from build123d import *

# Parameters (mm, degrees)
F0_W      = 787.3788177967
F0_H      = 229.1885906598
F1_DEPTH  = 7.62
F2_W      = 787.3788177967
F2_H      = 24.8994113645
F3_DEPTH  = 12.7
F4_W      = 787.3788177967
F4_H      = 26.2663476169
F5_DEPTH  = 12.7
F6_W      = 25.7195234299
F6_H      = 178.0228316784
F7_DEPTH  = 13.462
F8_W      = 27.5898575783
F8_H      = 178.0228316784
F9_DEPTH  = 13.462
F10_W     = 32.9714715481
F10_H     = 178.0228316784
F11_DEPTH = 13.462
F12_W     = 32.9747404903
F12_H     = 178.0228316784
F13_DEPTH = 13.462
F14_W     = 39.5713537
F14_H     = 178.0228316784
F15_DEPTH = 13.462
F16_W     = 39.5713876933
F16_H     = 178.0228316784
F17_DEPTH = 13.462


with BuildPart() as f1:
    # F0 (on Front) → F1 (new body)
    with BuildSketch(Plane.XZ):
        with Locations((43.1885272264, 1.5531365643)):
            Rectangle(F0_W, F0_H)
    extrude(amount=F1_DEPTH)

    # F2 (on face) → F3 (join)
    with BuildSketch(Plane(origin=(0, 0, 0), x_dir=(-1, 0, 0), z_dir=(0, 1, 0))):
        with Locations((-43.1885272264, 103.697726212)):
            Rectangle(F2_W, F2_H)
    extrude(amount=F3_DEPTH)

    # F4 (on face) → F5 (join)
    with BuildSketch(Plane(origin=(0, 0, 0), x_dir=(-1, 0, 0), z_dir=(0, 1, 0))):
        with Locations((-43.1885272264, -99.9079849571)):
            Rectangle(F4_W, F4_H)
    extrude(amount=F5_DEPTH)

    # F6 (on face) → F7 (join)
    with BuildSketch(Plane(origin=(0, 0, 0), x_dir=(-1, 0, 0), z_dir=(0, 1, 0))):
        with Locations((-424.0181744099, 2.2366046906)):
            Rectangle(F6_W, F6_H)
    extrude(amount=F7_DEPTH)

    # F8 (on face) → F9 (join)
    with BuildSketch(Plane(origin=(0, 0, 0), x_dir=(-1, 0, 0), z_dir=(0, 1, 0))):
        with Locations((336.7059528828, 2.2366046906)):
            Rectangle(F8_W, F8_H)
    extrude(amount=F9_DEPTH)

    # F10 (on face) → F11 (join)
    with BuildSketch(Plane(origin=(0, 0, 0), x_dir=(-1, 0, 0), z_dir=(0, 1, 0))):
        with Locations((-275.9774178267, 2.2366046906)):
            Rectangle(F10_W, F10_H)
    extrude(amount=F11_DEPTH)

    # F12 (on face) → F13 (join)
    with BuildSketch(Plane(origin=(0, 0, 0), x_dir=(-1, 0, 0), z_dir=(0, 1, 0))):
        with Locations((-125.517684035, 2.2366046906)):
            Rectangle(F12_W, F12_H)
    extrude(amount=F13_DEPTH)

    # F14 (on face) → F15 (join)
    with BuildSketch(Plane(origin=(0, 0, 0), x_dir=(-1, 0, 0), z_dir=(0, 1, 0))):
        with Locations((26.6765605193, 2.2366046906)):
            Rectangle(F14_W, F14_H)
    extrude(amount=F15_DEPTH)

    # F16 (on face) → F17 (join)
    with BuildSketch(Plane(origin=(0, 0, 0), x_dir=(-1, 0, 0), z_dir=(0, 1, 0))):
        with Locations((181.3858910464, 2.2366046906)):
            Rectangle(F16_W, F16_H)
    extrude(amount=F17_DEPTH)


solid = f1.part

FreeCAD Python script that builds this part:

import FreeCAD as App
import Part
import Sketcher
Q = App.Units.Quantity

doc = App.newDocument("Part")
params = doc.addObject("Spreadsheet::Sheet", "Params")
for row, (alias, value) in enumerate([
    ("pad1_length", "0.3 in"),
    ("pad2_length", "0.5 in"),
    ("pad3_length", "0.5 in"),
    ("pad4_length", "0.53 in"),
    ("pad5_length", "0.53 in"),
    ("pad6_length", "0.53 in"),
    ("pad7_length", "0.53 in"),
    ("pad8_length", "0.53 in"),
    ("pad9_length", "0.53 in"),
], start=1):
    params.set(f"A{row}", alias)
    params.set(f"B{row}", "=" + value)
    params.setAlias(f"B{row}", alias)

body = doc.addObject("PartDesign::Body", "Body")

sketch1 = body.newObject("Sketcher::SketchObject", "Sketch")
sketch1.AttachmentSupport = (doc.getObject("XZ_Plane"), [""])
sketch1.MapMode = "FlatFace"
sketch1.addGeometry([
    Part.LineSegment(App.Vector(-351, 116, 0), App.Vector(-351, -113, 0)),
    Part.LineSegment(App.Vector(-351, -113, 0), App.Vector(437, -113, 0)),
    Part.LineSegment(App.Vector(437, -113, 0), App.Vector(437, 116, 0)),
    Part.LineSegment(App.Vector(437, 116, 0), App.Vector(-351, 116, 0)),
], False)
sketch1.addConstraint([
    Sketcher.Constraint("Coincident", 0, 2, 1, 1),
    Sketcher.Constraint("Coincident", 1, 2, 2, 1),
    Sketcher.Constraint("Coincident", 2, 2, 3, 1),
    Sketcher.Constraint("Coincident", 3, 2, 0, 1),
    Sketcher.Constraint("Vertical", 0),
    Sketcher.Constraint("Horizontal", 1),
    Sketcher.Constraint("Vertical", 2),
    Sketcher.Constraint("Horizontal", 3),
    Sketcher.Constraint("DistanceY", 0, 2, 0, 1, Q("229.188591 mm")),
    Sketcher.Constraint("DistanceX", 1, 1, 1, 2, Q("787.378818 mm")),
    Sketcher.Constraint("DistanceX", 0, 2, -1, 1, Q("350.500882 mm")),
    Sketcher.Constraint("DistanceY", 0, 2, -1, 1, Q("113.041159 mm")),
])
pad1 = body.newObject("PartDesign::Pad", "Pad")
pad1.Profile = sketch1
pad1.setExpression("Length", "Params.pad1_length")

sketch2 = body.newObject("Sketcher::SketchObject", "Sketch001")
sketch2.AttachmentSupport = (doc.getObject("XZ_Plane"), [""])
sketch2.MapMode = "FlatFace"
sketch2.addGeometry([
    Part.LineSegment(App.Vector(437, 116, 0), App.Vector(437, 91, 0)),
    Part.LineSegment(App.Vector(437, 91, 0), App.Vector(-351, 91, 0)),
    Part.LineSegment(App.Vector(-351, 91, 0), App.Vector(-351, 116, 0)),
    Part.LineSegment(App.Vector(-351, 116, 0), App.Vector(437, 116, 0)),
], False)
sketch2.addConstraint([
    Sketcher.Constraint("Coincident", 0, 2, 1, 1),
    Sketcher.Constraint("Coincident", 1, 2, 2, 1),
    Sketcher.Constraint("Coincident", 2, 2, 3, 1),
    Sketcher.Constraint("Coincident", 3, 2, 0, 1),
    Sketcher.Constraint("Vertical", 0),
    Sketcher.Constraint("Horizontal", 1),
    Sketcher.Constraint("Vertical", 2),
    Sketcher.Constraint("Horizontal", 3),
    Sketcher.Constraint("DistanceY", 0, 2, 0, 1, Q("24.899411 mm")),
    Sketcher.Constraint("DistanceX", 1, 2, 1, 1, Q("787.378818 mm")),
    Sketcher.Constraint("DistanceY", -1, 1, 0, 2, Q("91.248021 mm")),
    Sketcher.Constraint("DistanceX", 1, 2, -1, 1, Q("350.500882 mm")),
])
pad2 = body.newObject("PartDesign::Pad", "Pad001")
pad2.Profile = sketch2
pad2.setExpression("Length", "Params.pad2_length")
pad2.Reversed = True

sketch3 = body.newObject("Sketcher::SketchObject", "Sketch002")
sketch3.AttachmentSupport = (doc.getObject("XZ_Plane"), [""])
sketch3.MapMode = "FlatFace"
sketch3.addGeometry([
    Part.LineSegment(App.Vector(437, -87, 0), App.Vector(437, -113, 0)),
    Part.LineSegment(App.Vector(437, -113, 0), App.Vector(-351, -113, 0)),
    Part.LineSegment(App.Vector(-351, -113, 0), App.Vector(-351, -87, 0)),
    Part.LineSegment(App.Vector(-351, -87, 0), App.Vector(437, -87, 0)),
], False)
sketch3.addConstraint([
    Sketcher.Constraint("Coincident", 0, 2, 1, 1),
    Sketcher.Constraint("Coincident", 1, 2, 2, 1),
    Sketcher.Constraint("Coincident", 2, 2, 3, 1),
    Sketcher.Constraint("Coincident", 3, 2, 0, 1),
    Sketcher.Constraint("Vertical", 0),
    Sketcher.Constraint("Horizontal", 1),
    Sketcher.Constraint("Vertical", 2),
    Sketcher.Constraint("Horizontal", 3),
    Sketcher.Constraint("DistanceX", 1, 2, 1, 1, Q("787.378818 mm")),
    Sketcher.Constraint("DistanceY", 0, 2, 0, 1, Q("26.266348 mm")),
    Sketcher.Constraint("DistanceY", 0, 2, -1, 1, Q("113.041159 mm")),
    Sketcher.Constraint("DistanceX", 1, 2, -1, 1, Q("350.500882 mm")),
])
pad3 = body.newObject("PartDesign::Pad", "Pad002")
pad3.Profile = sketch3
pad3.setExpression("Length", "Params.pad3_length")
pad3.Reversed = True

sketch4 = body.newObject("Sketcher::SketchObject", "Sketch003")
sketch4.AttachmentSupport = (doc.getObject("XZ_Plane"), [""])
sketch4.MapMode = "FlatFace"
sketch4.addGeometry([
    Part.LineSegment(App.Vector(437, 91, 0), App.Vector(437, -87, 0)),
    Part.LineSegment(App.Vector(437, -87, 0), App.Vector(411, -87, 0)),
    Part.LineSegment(App.Vector(411, -87, 0), App.Vector(411, 91, 0)),
    Part.LineSegment(App.Vector(411, 91, 0), App.Vector(437, 91, 0)),
], False)
sketch4.addConstraint([
    Sketcher.Constraint("Coincident", 0, 2, 1, 1),
    Sketcher.Constraint("Coincident", 1, 2, 2, 1),
    Sketcher.Constraint("Coincident", 2, 2, 3, 1),
    Sketcher.Constraint("Coincident", 3, 2, 0, 1),
    Sketcher.Constraint("Vertical", 0),
    Sketcher.Constraint("Horizontal", 1),
    Sketcher.Constraint("Vertical", 2),
    Sketcher.Constraint("Horizontal", 3),
    Sketcher.Constraint("DistanceY", 0, 2, 0, 1, Q("178.022832 mm")),
    Sketcher.Constraint("DistanceX", 1, 2, 1, 1, Q("25.719523 mm")),
    Sketcher.Constraint("DistanceY", 0, 2, -1, 1, Q("86.774811 mm")),
    Sketcher.Constraint("DistanceX", -1, 1, 0, 2, Q("436.877936 mm")),
])
pad4 = body.newObject("PartDesign::Pad", "Pad003")
pad4.Profile = sketch4
pad4.setExpression("Length", "Params.pad4_length")
pad4.Reversed = True

sketch5 = body.newObject("Sketcher::SketchObject", "Sketch004")
sketch5.AttachmentSupport = (doc.getObject("XZ_Plane"), [""])
sketch5.MapMode = "FlatFace"
sketch5.addGeometry([
    Part.LineSegment(App.Vector(-323, 91, 0), App.Vector(-323, -87, 0)),
    Part.LineSegment(App.Vector(-323, -87, 0), App.Vector(-351, -87, 0)),
    Part.LineSegment(App.Vector(-351, -87, 0), App.Vector(-351, 91, 0)),
    Part.LineSegment(App.Vector(-351, 91, 0), App.Vector(-323, 91, 0)),
], False)
sketch5.addConstraint([
    Sketcher.Constraint("Coincident", 0, 2, 1, 1),
    Sketcher.Constraint("Coincident", 1, 2, 2, 1),
    Sketcher.Constraint("Coincident", 2, 2, 3, 1),
    Sketcher.Constraint("Coincident", 3, 2, 0, 1),
    Sketcher.Constraint("Vertical", 0),
    Sketcher.Constraint("Horizontal", 1),
    Sketcher.Constraint("Vertical", 2),
    Sketcher.Constraint("Horizontal", 3),
    Sketcher.Constraint("DistanceY", 0, 2, 0, 1, Q("178.022832 mm")),
    Sketcher.Constraint("DistanceX", 1, 2, 1, 1, Q("27.589858 mm")),
    Sketcher.Constraint("DistanceY", 0, 2, -1, 1, Q("86.774811 mm")),
    Sketcher.Constraint("DistanceX", 1, 2, -1, 1, Q("350.500882 mm")),
])
pad5 = body.newObject("PartDesign::Pad", "Pad004")
pad5.Profile = sketch5
pad5.setExpression("Length", "Params.pad5_length")
pad5.Reversed = True

sketch6 = body.newObject("Sketcher::SketchObject", "Sketch005")
sketch6.AttachmentSupport = (doc.getObject("XZ_Plane"), [""])
sketch6.MapMode = "FlatFace"
sketch6.addGeometry([
    Part.LineSegment(App.Vector(292, 91, 0), App.Vector(292, -87, 0)),
    Part.LineSegment(App.Vector(292, -87, 0), App.Vector(259, -87, 0)),
    Part.LineSegment(App.Vector(259, -87, 0), App.Vector(259, 91, 0)),
    Part.LineSegment(App.Vector(259, 91, 0), App.Vector(292, 91, 0)),
], False)
sketch6.addConstraint([
    Sketcher.Constraint("Coincident", 0, 2, 1, 1),
    Sketcher.Constraint("Coincident", 1, 2, 2, 1),
    Sketcher.Constraint("Coincident", 2, 2, 3, 1),
    Sketcher.Constraint("Coincident", 3, 2, 0, 1),
    Sketcher.Constraint("Vertical", 0),
    Sketcher.Constraint("Horizontal", 1),
    Sketcher.Constraint("Vertical", 2),
    Sketcher.Constraint("Horizontal", 3),
    Sketcher.Constraint("DistanceX", 1, 2, 1, 1, Q("32.971472 mm")),
    Sketcher.Constraint("DistanceY", 0, 2, 0, 1, Q("178.022832 mm")),
    Sketcher.Constraint("DistanceY", 0, 2, -1, 1, Q("86.774811 mm")),
    Sketcher.Constraint("DistanceX", -1, 1, 0, 2, Q("292.463154 mm")),
])
pad6 = body.newObject("PartDesign::Pad", "Pad005")
pad6.Profile = sketch6
pad6.setExpression("Length", "Params.pad6_length")
pad6.Reversed = True

sketch7 = body.newObject("Sketcher::SketchObject", "Sketch006")
sketch7.AttachmentSupport = (doc.getObject("XZ_Plane"), [""])
sketch7.MapMode = "FlatFace"
sketch7.addGeometry([
    Part.LineSegment(App.Vector(142, 91, 0), App.Vector(142, -87, 0)),
    Part.LineSegment(App.Vector(142, -87, 0), App.Vector(109, -87, 0)),
    Part.LineSegment(App.Vector(109, -87, 0), App.Vector(109, 91, 0)),
    Part.LineSegment(App.Vector(109, 91, 0), App.Vector(142, 91, 0)),
], False)
sketch7.addConstraint([
    Sketcher.Constraint("Coincident", 0, 2, 1, 1),
    Sketcher.Constraint("Coincident", 1, 2, 2, 1),
    Sketcher.Constraint("Coincident", 2, 2, 3, 1),
    Sketcher.Constraint("Coincident", 3, 2, 0, 1),
    Sketcher.Constraint("Vertical", 0),
    Sketcher.Constraint("Horizontal", 1),
    Sketcher.Constraint("Vertical", 2),
    Sketcher.Constraint("Horizontal", 3),
    Sketcher.Constraint("DistanceX", 1, 2, 1, 1, Q("32.97474 mm")),
    Sketcher.Constraint("DistanceY", 0, 2, 0, 1, Q("178.022832 mm")),
    Sketcher.Constraint("DistanceY", 0, 2, -1, 1, Q("86.774811 mm")),
    Sketcher.Constraint("DistanceX", -1, 1, 0, 2, Q("142.005054 mm")),
])
pad7 = body.newObject("PartDesign::Pad", "Pad006")
pad7.Profile = sketch7
pad7.setExpression("Length", "Params.pad7_length")
pad7.Reversed = True

sketch8 = body.newObject("Sketcher::SketchObject", "Sketch007")
sketch8.AttachmentSupport = (doc.getObject("XZ_Plane"), [""])
sketch8.MapMode = "FlatFace"
sketch8.addGeometry([
    Part.LineSegment(App.Vector(-7, 91, 0), App.Vector(-7, -87, 0)),
    Part.LineSegment(App.Vector(-7, -87, 0), App.Vector(-46, -87, 0)),
    Part.LineSegment(App.Vector(-46, -87, 0), App.Vector(-46, 91, 0)),
    Part.LineSegment(App.Vector(-46, 91, 0), App.Vector(-7, 91, 0)),
], False)
sketch8.addConstraint([
    Sketcher.Constraint("Coincident", 0, 2, 1, 1),
    Sketcher.Constraint("Coincident", 1, 2, 2, 1),
    Sketcher.Constraint("Coincident", 2, 2, 3, 1),
    Sketcher.Constraint("Coincident", 3, 2, 0, 1),
    Sketcher.Constraint("Vertical", 0),
    Sketcher.Constraint("Horizontal", 1),
    Sketcher.Constraint("Vertical", 2),
    Sketcher.Constraint("Horizontal", 3),
    Sketcher.Constraint("DistanceY", 0, 2, 0, 1, Q("178.022832 mm")),
    Sketcher.Constraint("DistanceX", 1, 2, 1, 1, Q("39.571354 mm")),
    Sketcher.Constraint("DistanceY", 0, 2, -1, 1, Q("86.774811 mm")),
    Sketcher.Constraint("DistanceX", 0, 2, -1, 1, Q("6.890884 mm")),
])
pad8 = body.newObject("PartDesign::Pad", "Pad007")
pad8.Profile = sketch8
pad8.setExpression("Length", "Params.pad8_length")
pad8.Reversed = True

sketch9 = body.newObject("Sketcher::SketchObject", "Sketch008")
sketch9.AttachmentSupport = (doc.getObject("XZ_Plane"), [""])
sketch9.MapMode = "FlatFace"
sketch9.addGeometry([
    Part.LineSegment(App.Vector(-162, 91, 0), App.Vector(-162, -87, 0)),
    Part.LineSegment(App.Vector(-162, -87, 0), App.Vector(-201, -87, 0)),
    Part.LineSegment(App.Vector(-201, -87, 0), App.Vector(-201, 91, 0)),
    Part.LineSegment(App.Vector(-201, 91, 0), App.Vector(-162, 91, 0)),
], False)
sketch9.addConstraint([
    Sketcher.Constraint("Coincident", 0, 2, 1, 1),
    Sketcher.Constraint("Coincident", 1, 2, 2, 1),
    Sketcher.Constraint("Coincident", 2, 2, 3, 1),
    Sketcher.Constraint("Coincident", 3, 2, 0, 1),
    Sketcher.Constraint("Vertical", 0),
    Sketcher.Constraint("Horizontal", 1),
    Sketcher.Constraint("Vertical", 2),
    Sketcher.Constraint("Horizontal", 3),
    Sketcher.Constraint("DistanceY", 0, 2, 0, 1, Q("178.022832 mm")),
    Sketcher.Constraint("DistanceX", 1, 2, 1, 1, Q("39.571388 mm")),
    Sketcher.Constraint("DistanceY", 0, 2, -1, 1, Q("86.774811 mm")),
    Sketcher.Constraint("DistanceX", 0, 2, -1, 1, Q("161.600197 mm")),
])
pad9 = body.newObject("PartDesign::Pad", "Pad008")
pad9.Profile = sketch9
pad9.setExpression("Length", "Params.pad9_length")
pad9.Reversed = True

doc.recompute()
